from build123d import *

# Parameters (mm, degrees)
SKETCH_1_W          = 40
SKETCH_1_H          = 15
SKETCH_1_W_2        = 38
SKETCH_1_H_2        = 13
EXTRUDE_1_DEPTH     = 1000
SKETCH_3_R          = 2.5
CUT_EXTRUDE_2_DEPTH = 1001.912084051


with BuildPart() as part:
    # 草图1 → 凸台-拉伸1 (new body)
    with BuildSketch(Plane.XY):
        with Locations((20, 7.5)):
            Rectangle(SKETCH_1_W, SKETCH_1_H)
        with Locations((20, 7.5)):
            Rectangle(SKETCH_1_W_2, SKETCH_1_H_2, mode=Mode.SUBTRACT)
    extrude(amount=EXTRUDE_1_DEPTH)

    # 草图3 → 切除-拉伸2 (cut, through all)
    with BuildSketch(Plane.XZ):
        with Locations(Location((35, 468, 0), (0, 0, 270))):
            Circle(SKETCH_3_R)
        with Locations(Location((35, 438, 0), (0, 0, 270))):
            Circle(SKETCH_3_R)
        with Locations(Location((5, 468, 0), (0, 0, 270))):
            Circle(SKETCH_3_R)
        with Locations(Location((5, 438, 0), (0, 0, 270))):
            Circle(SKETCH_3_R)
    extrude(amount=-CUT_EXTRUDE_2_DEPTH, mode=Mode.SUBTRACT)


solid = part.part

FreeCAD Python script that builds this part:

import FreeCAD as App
import Part
import Sketcher

V = App.Vector


def add_polygon(sketch, points):
    """Adds a closed chain of lines whose ends are joined by coincident constraints."""
    first, n = sketch.GeometryCount, len(points)
    for a, b in zip(points, points[1:] + points[:1]):
        sketch.addGeometry(Part.LineSegment(App.Vector(*a, 0), App.Vector(*b, 0)), False)
    for i in range(n):
        sketch.addConstraint(Sketcher.Constraint("Coincident", first + i, 2, first + (i + 1) % n, 1))

doc = App.newDocument("Part")
body = doc.addObject("PartDesign::Body", "Body")

sketch1 = doc.addObject("Sketcher::SketchObject", "Sketch")
body.addObject(sketch1)
sketch1.AttachmentSupport = (doc.XY_Plane, [""])
sketch1.MapMode = "FlatFace"
add_polygon(sketch1, [(0, 15), (0, 0), (40, 0), (40, 15)])
add_polygon(sketch1, [(39, 1), (1, 1), (1, 14), (39, 14)])
sketch1.addConstraint(Sketcher.Constraint("Vertical", 0))
sketch1.addConstraint(Sketcher.Constraint("Horizontal", 1))
sketch1.addConstraint(Sketcher.Constraint("Vertical", 2))
sketch1.addConstraint(Sketcher.Constraint("Horizontal", 3))
sketch1.addConstraint(Sketcher.Constraint("Horizontal", 4))
sketch1.addConstraint(Sketcher.Constraint("Vertical", 5))
sketch1.addConstraint(Sketcher.Constraint("Horizontal", 6))
sketch1.addConstraint(Sketcher.Constraint("Vertical", 7))
sketch1.addConstraint(Sketcher.Constraint("Coincident", 0, 2, -1, 1))
sketch1.addConstraint(Sketcher.Constraint("DistanceX", 1, 1, 1, 2, 40.0))
sketch1.addConstraint(Sketcher.Constraint("DistanceX", 4, 2, 4, 1, 38.0))
sketch1.addConstraint(Sketcher.Constraint("DistanceY", 0, 2, 0, 1, 15.0))
sketch1.addConstraint(Sketcher.Constraint("DistanceY", 5, 1, 5, 2, 13.0))
sketch1.addConstraint(Sketcher.Constraint("DistanceX", -1, 1, 4, 2, 1.0))
sketch1.addConstraint(Sketcher.Constraint("DistanceY", -1, 1, 4, 2, 1.0))
pad1 = doc.addObject("PartDesign::Pad", "Pad")
body.addObject(pad1)
pad1.Profile = sketch1
pad1.Length = 1000

sketch2 = doc.addObject("Sketcher::SketchObject", "Sketch001")
body.addObject(sketch2)
sketch2.AttachmentSupport = (doc.XZ_Plane, [""])
sketch2.MapMode = "FlatFace"
sketch2.addGeometry(Part.Circle(V(35, 468, 0), V(0, 0, 1), 2.5), False)
sketch2.addGeometry(Part.Circle(V(35, 438, 0), V(0, 0, 1), 2.5), False)
sketch2.addGeometry(Part.Circle(V(5, 468, 0), V(0, 0, 1), 2.5), False)
sketch2.addGeometry(Part.Circle(V(5, 438, 0), V(0, 0, 1), 2.5), False)
sketch2.addConstraint(Sketcher.Constraint("Equal", 0, 1))
sketch2.addConstraint(Sketcher.Constraint("Equal", 1, 2))
sketch2.addConstraint(Sketcher.Constraint("Equal", 2, 3))
sketch2.addConstraint(Sketcher.Constraint("Horizontal", 0, 3, 2, 3))
sketch2.addConstraint(Sketcher.Constraint("Horizontal", 1, 3, 3, 3))
sketch2.addConstraint(Sketcher.Constraint("Vertical", 0, 3, 1, 3))
sketch2.addConstraint(Sketcher.Constraint("Vertical", 2, 3, 3, 3))
sketch2.addConstraint(Sketcher.Constraint("Diameter", 0, 5.0))
sketch2.addConstraint(Sketcher.Constraint("DistanceX", -1, 1, 0, 3, 35.0))
sketch2.addConstraint(Sketcher.Constraint("DistanceY", -1, 1, 0, 3, 468.0))
sketch2.addConstraint(Sketcher.Constraint("DistanceY", -1, 1, 1, 3, 438.0))
sketch2.addConstraint(Sketcher.Constraint("DistanceX", -1, 1, 2, 3, 5.0))
pocket1 = doc.addObject("PartDesign::Pocket", "Pocket")
body.addObject(pocket1)
pocket1.Profile = sketch2
pocket1.Type = "ThroughAll"

doc.recompute()
